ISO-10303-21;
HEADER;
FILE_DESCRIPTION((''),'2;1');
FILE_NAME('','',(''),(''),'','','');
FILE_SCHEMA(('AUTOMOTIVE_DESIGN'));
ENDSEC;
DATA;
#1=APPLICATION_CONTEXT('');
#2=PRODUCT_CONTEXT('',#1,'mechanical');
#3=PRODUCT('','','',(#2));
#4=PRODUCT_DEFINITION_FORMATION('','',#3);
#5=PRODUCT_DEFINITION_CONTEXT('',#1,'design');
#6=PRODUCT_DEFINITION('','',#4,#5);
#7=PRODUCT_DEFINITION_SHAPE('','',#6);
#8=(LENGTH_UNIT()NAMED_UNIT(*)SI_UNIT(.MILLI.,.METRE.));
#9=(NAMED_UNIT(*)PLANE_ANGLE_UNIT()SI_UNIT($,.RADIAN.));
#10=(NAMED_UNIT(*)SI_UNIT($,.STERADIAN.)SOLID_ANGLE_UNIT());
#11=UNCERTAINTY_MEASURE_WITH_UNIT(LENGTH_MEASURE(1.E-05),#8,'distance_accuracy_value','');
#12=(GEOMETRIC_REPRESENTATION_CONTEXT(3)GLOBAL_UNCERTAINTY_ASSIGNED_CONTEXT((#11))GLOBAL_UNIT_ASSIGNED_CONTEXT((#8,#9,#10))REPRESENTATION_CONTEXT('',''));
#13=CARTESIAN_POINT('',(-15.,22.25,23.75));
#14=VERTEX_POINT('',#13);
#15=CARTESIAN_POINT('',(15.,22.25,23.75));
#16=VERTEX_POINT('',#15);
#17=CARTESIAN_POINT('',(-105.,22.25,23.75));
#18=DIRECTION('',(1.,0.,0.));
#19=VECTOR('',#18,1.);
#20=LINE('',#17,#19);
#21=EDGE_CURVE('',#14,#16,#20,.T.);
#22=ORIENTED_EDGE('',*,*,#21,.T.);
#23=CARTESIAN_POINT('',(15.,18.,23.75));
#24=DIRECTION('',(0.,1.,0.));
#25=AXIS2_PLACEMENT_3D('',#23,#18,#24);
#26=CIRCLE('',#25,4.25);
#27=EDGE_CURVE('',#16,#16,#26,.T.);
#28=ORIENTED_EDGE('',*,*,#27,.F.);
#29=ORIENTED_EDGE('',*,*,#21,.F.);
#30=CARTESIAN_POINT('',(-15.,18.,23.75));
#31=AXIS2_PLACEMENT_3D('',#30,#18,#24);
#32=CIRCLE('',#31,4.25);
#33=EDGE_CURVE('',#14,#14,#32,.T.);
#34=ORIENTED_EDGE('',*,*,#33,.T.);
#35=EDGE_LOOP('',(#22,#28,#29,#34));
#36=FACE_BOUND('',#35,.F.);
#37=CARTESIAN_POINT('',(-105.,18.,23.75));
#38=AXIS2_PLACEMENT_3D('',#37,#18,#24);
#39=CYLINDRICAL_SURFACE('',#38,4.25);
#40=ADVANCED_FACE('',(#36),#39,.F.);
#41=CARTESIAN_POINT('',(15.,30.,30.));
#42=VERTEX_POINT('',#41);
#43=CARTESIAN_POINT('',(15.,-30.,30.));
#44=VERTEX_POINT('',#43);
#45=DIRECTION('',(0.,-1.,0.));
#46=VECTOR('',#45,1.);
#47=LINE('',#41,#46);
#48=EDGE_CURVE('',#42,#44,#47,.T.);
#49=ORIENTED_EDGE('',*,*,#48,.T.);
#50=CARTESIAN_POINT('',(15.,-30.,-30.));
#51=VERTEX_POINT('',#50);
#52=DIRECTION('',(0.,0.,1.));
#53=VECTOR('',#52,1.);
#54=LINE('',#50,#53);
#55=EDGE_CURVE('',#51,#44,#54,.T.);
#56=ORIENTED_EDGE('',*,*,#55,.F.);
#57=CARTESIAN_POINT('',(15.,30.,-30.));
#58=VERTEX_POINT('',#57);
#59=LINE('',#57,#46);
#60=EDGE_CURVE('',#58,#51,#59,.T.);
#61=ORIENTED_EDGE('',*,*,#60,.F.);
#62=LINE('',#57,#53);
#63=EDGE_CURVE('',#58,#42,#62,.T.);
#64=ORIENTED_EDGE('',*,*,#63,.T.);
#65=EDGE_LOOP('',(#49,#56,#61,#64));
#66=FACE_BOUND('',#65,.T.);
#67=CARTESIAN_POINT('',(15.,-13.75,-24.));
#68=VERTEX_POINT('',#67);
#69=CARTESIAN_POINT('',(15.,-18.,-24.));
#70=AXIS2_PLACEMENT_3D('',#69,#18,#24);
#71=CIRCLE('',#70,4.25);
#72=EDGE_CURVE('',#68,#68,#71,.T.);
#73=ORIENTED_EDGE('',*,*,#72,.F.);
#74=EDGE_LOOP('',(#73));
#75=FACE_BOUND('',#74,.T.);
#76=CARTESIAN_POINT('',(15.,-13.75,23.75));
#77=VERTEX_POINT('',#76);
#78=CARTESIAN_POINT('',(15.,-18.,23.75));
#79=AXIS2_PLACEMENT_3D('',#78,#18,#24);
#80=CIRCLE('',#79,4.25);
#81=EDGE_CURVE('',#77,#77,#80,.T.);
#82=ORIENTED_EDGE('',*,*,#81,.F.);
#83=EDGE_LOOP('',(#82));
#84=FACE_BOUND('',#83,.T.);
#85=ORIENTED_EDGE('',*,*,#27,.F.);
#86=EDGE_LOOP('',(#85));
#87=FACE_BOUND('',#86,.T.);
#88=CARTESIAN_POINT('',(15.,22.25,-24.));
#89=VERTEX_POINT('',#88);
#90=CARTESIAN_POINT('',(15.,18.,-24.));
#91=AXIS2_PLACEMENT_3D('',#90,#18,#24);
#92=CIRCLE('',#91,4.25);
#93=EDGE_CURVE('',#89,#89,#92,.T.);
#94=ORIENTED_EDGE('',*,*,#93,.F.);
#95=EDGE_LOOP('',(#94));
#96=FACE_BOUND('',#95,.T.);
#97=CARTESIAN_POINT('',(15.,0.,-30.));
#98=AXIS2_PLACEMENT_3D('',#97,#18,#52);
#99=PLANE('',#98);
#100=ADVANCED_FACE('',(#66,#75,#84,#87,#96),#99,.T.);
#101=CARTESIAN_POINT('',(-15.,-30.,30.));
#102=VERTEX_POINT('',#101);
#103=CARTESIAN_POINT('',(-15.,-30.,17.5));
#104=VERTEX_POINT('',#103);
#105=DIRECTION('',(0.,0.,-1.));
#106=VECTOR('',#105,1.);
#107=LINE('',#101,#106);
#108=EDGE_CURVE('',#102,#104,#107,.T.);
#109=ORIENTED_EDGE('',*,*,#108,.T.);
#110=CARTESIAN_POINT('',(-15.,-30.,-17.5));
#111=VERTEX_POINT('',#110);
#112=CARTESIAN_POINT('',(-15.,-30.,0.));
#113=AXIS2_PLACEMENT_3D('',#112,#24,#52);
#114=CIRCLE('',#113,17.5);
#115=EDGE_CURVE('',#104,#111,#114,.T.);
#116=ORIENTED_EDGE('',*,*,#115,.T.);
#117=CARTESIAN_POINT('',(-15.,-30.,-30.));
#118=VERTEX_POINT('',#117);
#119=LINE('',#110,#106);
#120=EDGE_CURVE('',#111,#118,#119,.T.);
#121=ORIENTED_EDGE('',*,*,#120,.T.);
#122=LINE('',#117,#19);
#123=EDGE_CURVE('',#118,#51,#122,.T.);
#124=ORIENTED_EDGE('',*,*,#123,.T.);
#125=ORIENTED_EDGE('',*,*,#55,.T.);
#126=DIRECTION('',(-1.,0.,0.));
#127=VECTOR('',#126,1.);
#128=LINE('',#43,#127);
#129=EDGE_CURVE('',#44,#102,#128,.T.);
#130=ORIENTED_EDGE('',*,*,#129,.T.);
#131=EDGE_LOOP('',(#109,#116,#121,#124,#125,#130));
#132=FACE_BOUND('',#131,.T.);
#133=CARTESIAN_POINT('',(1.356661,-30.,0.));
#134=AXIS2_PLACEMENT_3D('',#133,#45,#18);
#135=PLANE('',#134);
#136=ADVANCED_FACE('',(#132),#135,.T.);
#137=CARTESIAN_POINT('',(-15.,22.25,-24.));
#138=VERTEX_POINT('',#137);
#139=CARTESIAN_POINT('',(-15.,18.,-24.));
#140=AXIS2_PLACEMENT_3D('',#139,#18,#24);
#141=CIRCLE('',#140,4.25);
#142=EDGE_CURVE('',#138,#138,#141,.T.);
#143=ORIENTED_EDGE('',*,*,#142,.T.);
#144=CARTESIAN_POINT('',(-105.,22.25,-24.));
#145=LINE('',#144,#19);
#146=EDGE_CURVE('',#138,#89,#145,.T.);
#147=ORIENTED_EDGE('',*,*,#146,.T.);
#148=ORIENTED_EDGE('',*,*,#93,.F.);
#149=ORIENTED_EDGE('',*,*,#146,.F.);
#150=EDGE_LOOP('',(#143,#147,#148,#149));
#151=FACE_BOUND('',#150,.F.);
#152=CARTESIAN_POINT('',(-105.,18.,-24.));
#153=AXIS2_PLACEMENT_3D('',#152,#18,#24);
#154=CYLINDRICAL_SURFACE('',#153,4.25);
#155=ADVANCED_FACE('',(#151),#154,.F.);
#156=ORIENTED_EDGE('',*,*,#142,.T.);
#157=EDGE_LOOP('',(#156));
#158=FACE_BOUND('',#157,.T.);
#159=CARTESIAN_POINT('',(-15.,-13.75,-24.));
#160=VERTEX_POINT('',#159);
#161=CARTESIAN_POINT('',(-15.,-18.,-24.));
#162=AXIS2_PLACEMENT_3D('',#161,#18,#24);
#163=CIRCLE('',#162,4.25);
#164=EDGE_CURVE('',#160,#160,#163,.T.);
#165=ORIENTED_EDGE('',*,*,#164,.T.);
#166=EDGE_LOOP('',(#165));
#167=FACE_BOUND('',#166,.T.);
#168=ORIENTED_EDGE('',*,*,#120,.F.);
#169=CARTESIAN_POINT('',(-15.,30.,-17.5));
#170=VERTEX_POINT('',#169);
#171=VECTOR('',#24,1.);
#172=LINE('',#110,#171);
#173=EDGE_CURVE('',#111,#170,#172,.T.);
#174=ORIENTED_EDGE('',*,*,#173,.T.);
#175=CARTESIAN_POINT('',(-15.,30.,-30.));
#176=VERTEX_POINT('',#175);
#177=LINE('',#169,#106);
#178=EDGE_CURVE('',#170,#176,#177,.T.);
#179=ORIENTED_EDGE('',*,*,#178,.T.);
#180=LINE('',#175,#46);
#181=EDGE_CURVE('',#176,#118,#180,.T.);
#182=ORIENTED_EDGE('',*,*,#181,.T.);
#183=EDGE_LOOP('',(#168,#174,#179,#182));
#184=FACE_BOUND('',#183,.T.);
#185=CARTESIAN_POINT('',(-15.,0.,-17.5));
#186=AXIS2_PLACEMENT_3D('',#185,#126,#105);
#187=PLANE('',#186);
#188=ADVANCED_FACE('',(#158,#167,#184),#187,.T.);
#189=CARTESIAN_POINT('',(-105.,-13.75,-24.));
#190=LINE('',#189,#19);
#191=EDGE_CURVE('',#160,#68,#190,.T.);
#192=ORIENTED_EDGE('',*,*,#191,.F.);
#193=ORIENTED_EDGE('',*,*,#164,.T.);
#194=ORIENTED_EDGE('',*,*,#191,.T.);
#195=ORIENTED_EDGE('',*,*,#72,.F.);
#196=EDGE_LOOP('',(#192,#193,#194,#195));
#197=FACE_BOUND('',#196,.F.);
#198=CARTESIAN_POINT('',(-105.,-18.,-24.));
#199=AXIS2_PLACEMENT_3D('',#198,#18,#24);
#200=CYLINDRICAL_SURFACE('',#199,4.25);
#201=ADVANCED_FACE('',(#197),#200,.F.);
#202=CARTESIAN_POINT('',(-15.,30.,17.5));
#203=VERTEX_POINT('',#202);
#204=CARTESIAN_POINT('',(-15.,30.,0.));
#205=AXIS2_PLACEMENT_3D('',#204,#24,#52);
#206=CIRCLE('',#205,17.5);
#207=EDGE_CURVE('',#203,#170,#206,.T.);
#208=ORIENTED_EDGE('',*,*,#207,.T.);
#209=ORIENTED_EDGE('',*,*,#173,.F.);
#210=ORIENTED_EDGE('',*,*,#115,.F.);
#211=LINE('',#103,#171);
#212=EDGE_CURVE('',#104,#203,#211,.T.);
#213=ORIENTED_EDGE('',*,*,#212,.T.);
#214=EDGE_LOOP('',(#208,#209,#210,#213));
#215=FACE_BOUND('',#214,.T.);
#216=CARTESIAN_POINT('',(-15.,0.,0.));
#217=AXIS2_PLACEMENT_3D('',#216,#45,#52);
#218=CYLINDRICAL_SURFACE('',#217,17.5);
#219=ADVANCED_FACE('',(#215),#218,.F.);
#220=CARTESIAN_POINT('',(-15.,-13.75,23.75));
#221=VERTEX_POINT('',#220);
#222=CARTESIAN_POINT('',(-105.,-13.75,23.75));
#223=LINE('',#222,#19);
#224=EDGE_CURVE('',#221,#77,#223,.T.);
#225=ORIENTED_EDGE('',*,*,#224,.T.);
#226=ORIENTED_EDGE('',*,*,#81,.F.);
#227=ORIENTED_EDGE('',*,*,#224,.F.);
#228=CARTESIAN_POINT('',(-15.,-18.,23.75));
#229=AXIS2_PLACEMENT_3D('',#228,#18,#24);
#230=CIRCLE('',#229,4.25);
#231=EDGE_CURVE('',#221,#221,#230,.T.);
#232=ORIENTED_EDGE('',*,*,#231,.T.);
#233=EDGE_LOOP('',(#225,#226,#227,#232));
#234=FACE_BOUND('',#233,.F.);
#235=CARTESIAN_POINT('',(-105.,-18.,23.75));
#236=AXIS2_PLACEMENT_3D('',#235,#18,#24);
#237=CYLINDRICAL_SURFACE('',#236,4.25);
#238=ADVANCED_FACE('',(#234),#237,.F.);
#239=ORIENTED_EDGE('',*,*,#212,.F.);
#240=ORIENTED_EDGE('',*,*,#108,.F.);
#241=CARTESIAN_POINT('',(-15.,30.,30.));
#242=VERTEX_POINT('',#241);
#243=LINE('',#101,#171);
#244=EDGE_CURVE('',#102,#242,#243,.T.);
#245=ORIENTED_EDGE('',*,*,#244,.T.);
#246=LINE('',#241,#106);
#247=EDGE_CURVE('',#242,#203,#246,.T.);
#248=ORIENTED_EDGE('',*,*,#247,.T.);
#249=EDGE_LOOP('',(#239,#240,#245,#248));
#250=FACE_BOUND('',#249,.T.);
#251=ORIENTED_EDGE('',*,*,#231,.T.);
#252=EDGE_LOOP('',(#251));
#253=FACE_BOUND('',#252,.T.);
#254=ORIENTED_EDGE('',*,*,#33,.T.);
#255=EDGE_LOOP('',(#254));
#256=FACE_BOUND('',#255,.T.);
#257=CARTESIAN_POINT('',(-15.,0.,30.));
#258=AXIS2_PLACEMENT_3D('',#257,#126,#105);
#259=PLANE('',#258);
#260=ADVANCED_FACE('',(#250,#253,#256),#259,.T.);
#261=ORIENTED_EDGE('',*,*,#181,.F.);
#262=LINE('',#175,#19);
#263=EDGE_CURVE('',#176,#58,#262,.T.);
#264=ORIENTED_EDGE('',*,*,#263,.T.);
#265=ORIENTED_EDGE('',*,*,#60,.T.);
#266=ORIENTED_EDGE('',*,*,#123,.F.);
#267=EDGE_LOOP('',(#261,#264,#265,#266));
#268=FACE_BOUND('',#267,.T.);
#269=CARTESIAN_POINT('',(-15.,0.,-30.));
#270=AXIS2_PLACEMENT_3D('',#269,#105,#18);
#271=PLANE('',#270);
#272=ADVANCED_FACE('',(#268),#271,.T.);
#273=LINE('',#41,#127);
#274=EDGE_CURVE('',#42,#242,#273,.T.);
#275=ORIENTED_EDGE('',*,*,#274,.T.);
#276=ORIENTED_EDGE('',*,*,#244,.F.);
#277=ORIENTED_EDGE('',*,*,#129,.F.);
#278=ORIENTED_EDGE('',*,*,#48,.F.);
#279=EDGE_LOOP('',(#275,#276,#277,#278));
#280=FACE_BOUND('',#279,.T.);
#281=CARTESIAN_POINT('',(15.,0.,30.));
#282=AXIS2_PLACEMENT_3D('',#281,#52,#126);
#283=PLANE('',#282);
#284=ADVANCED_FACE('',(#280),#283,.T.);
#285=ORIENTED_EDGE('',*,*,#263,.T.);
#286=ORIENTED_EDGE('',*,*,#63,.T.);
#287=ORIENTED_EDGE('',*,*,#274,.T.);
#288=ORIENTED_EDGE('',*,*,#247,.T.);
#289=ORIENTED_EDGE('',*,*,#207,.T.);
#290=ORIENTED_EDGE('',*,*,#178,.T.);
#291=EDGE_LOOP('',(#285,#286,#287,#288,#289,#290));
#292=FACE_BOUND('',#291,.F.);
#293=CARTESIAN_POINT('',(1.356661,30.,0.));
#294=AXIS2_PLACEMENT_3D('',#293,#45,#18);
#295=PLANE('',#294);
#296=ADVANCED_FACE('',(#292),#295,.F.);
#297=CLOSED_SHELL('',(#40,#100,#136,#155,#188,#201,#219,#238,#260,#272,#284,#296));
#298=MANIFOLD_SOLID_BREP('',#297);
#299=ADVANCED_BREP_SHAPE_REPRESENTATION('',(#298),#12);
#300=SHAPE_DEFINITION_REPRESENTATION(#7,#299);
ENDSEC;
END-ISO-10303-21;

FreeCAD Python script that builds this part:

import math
import FreeCAD as App
import Part
import Sketcher
from FreeCAD import Vector

doc = App.newDocument("Part")
body = doc.addObject("PartDesign::Body", "Body")

sketch1 = body.newObject("Sketcher::SketchObject", "Sketch")
sketch1.AttachmentSupport = (doc.getObject("XZ_Plane"), [""])
sketch1.MapMode = "FlatFace"
sketch1.addGeometry([
    Part.LineSegment(Vector(-15, -18, 0), Vector(-15, -30, 0)),
    Part.LineSegment(Vector(-15, -30, 0), Vector(15, -30, 0)),
    Part.LineSegment(Vector(15, -30, 0), Vector(15, 30, 0)),
    Part.LineSegment(Vector(15, 30, 0), Vector(-15, 30, 0)),
    Part.LineSegment(Vector(-15, 30, 0), Vector(-15, 18, 0)),
    Part.ArcOfCircle(Part.Circle(Vector(-15, 0, 0), Vector(0, 0, 1), 18), math.radians(-90), math.radians(90)),
], False)
sketch1.addConstraint([
    Sketcher.Constraint("Coincident", 0, 2, 1, 1),
    Sketcher.Constraint("Coincident", 1, 2, 2, 1),
    Sketcher.Constraint("Coincident", 2, 2, 3, 1),
    Sketcher.Constraint("Coincident", 3, 2, 4, 1),
    Sketcher.Constraint("Coincident", 4, 2, 5, 2),
    Sketcher.Constraint("Coincident", 5, 1, 0, 1),
    Sketcher.Constraint("Vertical", 0),
    Sketcher.Constraint("Horizontal", 1),
    Sketcher.Constraint("Vertical", 2),
    Sketcher.Constraint("Horizontal", 3),
    Sketcher.Constraint("Vertical", 4),
    Sketcher.Constraint("Symmetric", 0, 2, 2, 2, -1, 1),
    Sketcher.Constraint("Symmetric", 4, 2, 5, 1, -1),
    Sketcher.Constraint("Vertical", 5, 3, 0, 2),
    Sketcher.Constraint("Radius", 5, 17.5),
    Sketcher.Constraint("DistanceX", 1, 1, 1, 2, 30.0),
    Sketcher.Constraint("DistanceY", 2, 1, 2, 2, 60.0),
])
pad1 = body.newObject("PartDesign::Pad", "Pad")
pad1.Profile = sketch1
pad1.Length = 60
pad1.Midplane = True

sketch2 = body.newObject("Sketcher::SketchObject", "Sketch001")
sketch2.AttachmentSupport = (doc.getObject("YZ_Plane"), [""])
sketch2.MapMode = "FlatFace"
sketch2.AttachmentOffset = App.Placement(Vector(0, 0, -15), App.Rotation())
sketch2.addGeometry([
    Part.Circle(Vector(-18, 23.8, 0), Vector(0, 0, 1), 4.2),
    Part.Circle(Vector(18, 23.8, 0), Vector(0, 0, 1), 4.2),
    Part.Circle(Vector(18, -24, 0), Vector(0, 0, 1), 4.2),
    Part.Circle(Vector(-18, -24, 0), Vector(0, 0, 1), 4.2),
], False)
sketch2.addConstraint([
    Sketcher.Constraint("Equal", 0, 1),
    Sketcher.Constraint("Equal", 1, 2),
    Sketcher.Constraint("Equal", 2, 3),
    Sketcher.Constraint("Symmetric", 0, 3, 1, 3, -2),
    Sketcher.Constraint("Symmetric", 2, 3, 3, 3, -2),
    Sketcher.Constraint("Vertical", 1, 3, 2, 3),
    Sketcher.Constraint("Diameter", 0, 8.5),
    Sketcher.Constraint("DistanceX", 0, 3, -1, 1, 18.0),
    Sketcher.Constraint("DistanceY", 2, 3, -1, 1, 24.0),
    Sketcher.Constraint("DistanceY", -1, 1, 0, 3, 23.75),
])
doc.recompute()
hole = body.newObject("PartDesign::Hole", "Hole")
hole.Profile = sketch2
hole.ThreadType = "None"
hole.Diameter = 8.5
hole.DepthType = "ThroughAll"
hole.Reversed = True

doc.recompute()
